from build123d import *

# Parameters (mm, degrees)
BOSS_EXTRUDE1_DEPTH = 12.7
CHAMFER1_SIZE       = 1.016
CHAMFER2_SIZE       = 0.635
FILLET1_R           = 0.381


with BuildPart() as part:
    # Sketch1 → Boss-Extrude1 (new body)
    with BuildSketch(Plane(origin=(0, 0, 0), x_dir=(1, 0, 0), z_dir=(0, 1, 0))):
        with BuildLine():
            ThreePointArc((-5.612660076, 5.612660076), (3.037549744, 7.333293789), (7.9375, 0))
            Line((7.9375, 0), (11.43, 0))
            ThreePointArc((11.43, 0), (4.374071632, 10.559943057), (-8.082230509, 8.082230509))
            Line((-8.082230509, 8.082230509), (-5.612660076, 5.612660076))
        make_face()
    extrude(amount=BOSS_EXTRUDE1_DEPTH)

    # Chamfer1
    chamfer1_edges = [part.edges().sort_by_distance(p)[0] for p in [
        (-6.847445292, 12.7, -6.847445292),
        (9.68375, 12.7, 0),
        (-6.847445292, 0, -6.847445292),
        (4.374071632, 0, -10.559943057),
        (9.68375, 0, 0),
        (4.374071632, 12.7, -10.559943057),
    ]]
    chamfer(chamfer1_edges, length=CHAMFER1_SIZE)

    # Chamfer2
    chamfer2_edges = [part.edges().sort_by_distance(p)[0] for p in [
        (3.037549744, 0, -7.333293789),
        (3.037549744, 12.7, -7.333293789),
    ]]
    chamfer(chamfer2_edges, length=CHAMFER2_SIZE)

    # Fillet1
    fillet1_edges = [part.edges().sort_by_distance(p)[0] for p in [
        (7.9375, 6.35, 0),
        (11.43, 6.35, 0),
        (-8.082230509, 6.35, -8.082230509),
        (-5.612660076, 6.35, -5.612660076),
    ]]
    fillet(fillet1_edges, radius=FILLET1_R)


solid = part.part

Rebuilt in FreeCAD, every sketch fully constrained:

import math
import FreeCAD as App
import Part
import Sketcher

V = App.Vector
Q = App.Units.Quantity


def edges_at(feature, points):
    """Names of the edges that pass closest to the given points."""
    edges = feature.Shape.Edges
    near = lambda p: min(range(len(edges)), key=lambda i: edges[i].distToShape(Part.Vertex(*p))[0])
    return sorted({f"Edge{near(p) + 1}" for p in points})

doc = App.newDocument("Part")
params = doc.addObject("Spreadsheet::Sheet", "Params")
for row, (alias, value) in enumerate([
    ("sketch1_radius", "0.45 in"),
    ("sketch1_radius2", "0.3125 in"),
    ("pad1_length", "0.5 in"),
    ("chamfer_size", "0.04 in"),
    ("chamfer2_size", "0.025 in"),
    ("fillet_radius", "0.015 in"),
], start=1):
    params.set(f"A{row}", alias)
    params.set(f"B{row}", "=" + value)
    params.setAlias(f"B{row}", alias)

body = doc.addObject("PartDesign::Body", "Body")

# Sketch on XZ plane
sketch1 = body.newObject("Sketcher::SketchObject", "Sketch")
sketch1.AttachmentSupport = (doc.getObject("XZ_Plane"), [""])
sketch1.MapMode = "FlatFace"
sketch1.addGeometry([
    Part.ArcOfCircle(Part.Circle(V(0, 0, 0), V(0, 0, 1), 7.9), math.radians(-135), math.radians(0)),
    Part.LineSegment(V(7.9, 0, 0), V(11.4, 0, 0)),
    Part.ArcOfCircle(Part.Circle(V(0, 0, 0), V(0, 0, 1), 11.4), math.radians(-135), math.radians(0)),
    Part.LineSegment(V(-8.1, -8.1, 0), V(-5.6, -5.6, 0)),
], False)
sketch1.addConstraint([
    Sketcher.Constraint("Coincident", 0, 2, 1, 1),
    Sketcher.Constraint("Coincident", 1, 2, 2, 2),
    Sketcher.Constraint("Coincident", 2, 1, 3, 1),
    Sketcher.Constraint("Coincident", 3, 2, 0, 1),
    Sketcher.Constraint("Horizontal", 1),
    Sketcher.Constraint("Coincident", 0, 3, -1, 1),
    Sketcher.Constraint("Coincident", 2, 3, -1, 1),
    Sketcher.Constraint("PointOnObject", 0, 2, -1),
    Sketcher.Constraint("Radius", 2, Q("0.45 in")),
    Sketcher.Constraint("Angle", 3, Q("45 deg")),
    Sketcher.Constraint("Radius", 0, Q("0.3125 in")),
    Sketcher.Constraint("DistanceX", 2, 1, -1, 1, 8.082231),
])
sketch1.setExpression("Constraints[8]", "Params.sketch1_radius")
sketch1.setExpression("Constraints[10]", "Params.sketch1_radius2")
pad1 = body.newObject("PartDesign::Pad", "Pad")
pad1.Profile = sketch1
pad1.setExpression("Length", "Params.pad1_length")
pad1.Reversed = True
doc.recompute()

chamfer = body.newObject("PartDesign::Chamfer", "Chamfer")
chamfer.Base = (pad1, edges_at(pad1, [
    (-6.847, 12.7, -6.847),
    (9.684, 12.7, 0),
    (-6.847, 0, -6.847),
    (4.374, 0, -10.56),
    (9.684, 0, 0),
    (4.374, 12.7, -10.56),
]))
chamfer.setExpression("Size", "Params.chamfer_size")
doc.recompute()

chamfer2 = body.newObject("PartDesign::Chamfer", "Chamfer001")
chamfer2.Base = (chamfer, edges_at(chamfer, [(3.038, 0, -7.333), (3.038, 12.7, -7.333)]))
chamfer2.setExpression("Size", "Params.chamfer2_size")
doc.recompute()

fillet = body.newObject("PartDesign::Fillet", "Fillet")
fillet.Base = (chamfer2, edges_at(chamfer2, [
    (7.938, 6.35, 0),
    (11.43, 6.35, 0),
    (-8.082, 6.35, -8.082),
    (-5.613, 6.35, -5.613),
]))
fillet.setExpression("Radius", "Params.fillet_radius")

doc.recompute()
